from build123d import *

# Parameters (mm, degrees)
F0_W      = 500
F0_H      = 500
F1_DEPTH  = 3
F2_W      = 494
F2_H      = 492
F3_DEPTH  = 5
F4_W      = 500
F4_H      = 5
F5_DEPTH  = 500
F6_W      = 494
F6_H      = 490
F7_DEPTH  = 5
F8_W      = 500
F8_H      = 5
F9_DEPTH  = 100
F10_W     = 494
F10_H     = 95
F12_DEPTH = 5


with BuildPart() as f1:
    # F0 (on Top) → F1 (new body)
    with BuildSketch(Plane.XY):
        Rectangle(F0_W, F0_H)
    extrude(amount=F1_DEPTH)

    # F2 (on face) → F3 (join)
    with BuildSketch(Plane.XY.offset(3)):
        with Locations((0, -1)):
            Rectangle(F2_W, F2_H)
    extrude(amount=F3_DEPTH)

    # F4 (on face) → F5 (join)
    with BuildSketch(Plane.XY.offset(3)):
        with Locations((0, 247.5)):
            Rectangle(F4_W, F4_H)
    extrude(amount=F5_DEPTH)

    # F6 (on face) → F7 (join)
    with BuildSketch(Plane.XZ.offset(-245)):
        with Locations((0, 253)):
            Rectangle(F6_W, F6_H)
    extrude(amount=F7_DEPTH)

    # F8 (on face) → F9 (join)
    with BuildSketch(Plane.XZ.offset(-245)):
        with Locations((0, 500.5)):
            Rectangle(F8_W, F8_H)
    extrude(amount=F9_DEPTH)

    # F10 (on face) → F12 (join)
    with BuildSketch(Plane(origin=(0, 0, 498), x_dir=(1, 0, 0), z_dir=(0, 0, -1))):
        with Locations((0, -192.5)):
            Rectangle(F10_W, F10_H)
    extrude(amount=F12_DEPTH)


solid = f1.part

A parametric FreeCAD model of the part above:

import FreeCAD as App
import Part
import Sketcher
Q = App.Units.Quantity


def add_polygon(sketch, points):
    """Adds a closed chain of lines whose ends are joined by coincident constraints."""
    first, n = sketch.GeometryCount, len(points)
    for a, b in zip(points, points[1:] + points[:1]):
        sketch.addGeometry(Part.LineSegment(App.Vector(*a, 0), App.Vector(*b, 0)), False)
    for i in range(n):
        sketch.addConstraint(Sketcher.Constraint("Coincident", first + i, 2, first + (i + 1) % n, 1))

doc = App.newDocument("Part")
params = doc.addObject("Spreadsheet::Sheet", "Params")
for row, (alias, value) in enumerate([
    ("sketch1_width", "500 mm"),
    ("pad1_length", "3 mm"),
    ("sketch2_width", "494 mm"),
    ("sketch2_height", "492 mm"),
    ("pad2_length", "5 mm"),
    ("sketch3_width", "500 mm"),
    ("sketch3_height", "5 mm"),
    ("pad3_length", "500 mm"),
    ("sketch4_width", "494 mm"),
    ("sketch4_height", "490 mm"),
    ("pad4_length", "5 mm"),
    ("sketch5_width", "500 mm"),
    ("sketch5_height", "5 mm"),
    ("pad5_length", "100 mm"),
    ("sketch6_width", "494 mm"),
    ("sketch6_height", "95 mm"),
    ("pad6_length", "5 mm"),
], start=1):
    params.set(f"A{row}", alias)
    params.set(f"B{row}", "=" + value)
    params.setAlias(f"B{row}", alias)

body = doc.addObject("PartDesign::Body", "Body")

# Sketch on XY plane
sketch1 = body.newObject("Sketcher::SketchObject", "Sketch")
sketch1.AttachmentSupport = (doc.getObject("XY_Plane"), [""])
sketch1.MapMode = "FlatFace"
add_polygon(sketch1, [(-250, 250), (-250, -250), (250, -250), (250, 250)])  # lines 0-3
sketch1.addConstraint(Sketcher.Constraint("Vertical", 0))
sketch1.addConstraint(Sketcher.Constraint("Horizontal", 1))
sketch1.addConstraint(Sketcher.Constraint("Vertical", 2))
sketch1.addConstraint(Sketcher.Constraint("Horizontal", 3))
sketch1.addConstraint(Sketcher.Constraint("Symmetric", 0, 2, 2, 2, -1, 1))
sketch1.addConstraint(Sketcher.Constraint("Equal", 3, 0))
sketch1.addConstraint(Sketcher.Constraint("DistanceX", 1, 1, 1, 2, Q("500 mm")))
sketch1.setExpression("Constraints[10]", "Params.sketch1_width")
pad1 = body.newObject("PartDesign::Pad", "Pad")
pad1.Profile = sketch1
pad1.setExpression("Length", "Params.pad1_length")

# Sketch on XY plane
sketch2 = body.newObject("Sketcher::SketchObject", "Sketch001")
sketch2.AttachmentSupport = (doc.getObject("XY_Plane"), [""])
sketch2.MapMode = "FlatFace"
sketch2.AttachmentOffset = App.Placement(App.Vector(0, 0, 3), App.Rotation())
add_polygon(sketch2, [(-247, 245), (-247, -247), (247, -247), (247, 245)])  # lines 0-3
sketch2.addConstraint(Sketcher.Constraint("Vertical", 0))
sketch2.addConstraint(Sketcher.Constraint("Horizontal", 1))
sketch2.addConstraint(Sketcher.Constraint("Vertical", 2))
sketch2.addConstraint(Sketcher.Constraint("Horizontal", 3))
sketch2.addConstraint(Sketcher.Constraint("DistanceX", 1, 1, 1, 2, Q("494 mm")))
sketch2.addConstraint(Sketcher.Constraint("DistanceY", 0, 2, 0, 1, Q("492 mm")))
sketch2.addConstraint(Sketcher.Constraint("DistanceX", 0, 2, -1, 1, Q("247 mm")))
sketch2.addConstraint(Sketcher.Constraint("DistanceY", 0, 2, -1, 1, Q("247 mm")))
sketch2.setExpression("Constraints[8]", "Params.sketch2_width")
sketch2.setExpression("Constraints[9]", "Params.sketch2_height")
pad2 = body.newObject("PartDesign::Pad", "Pad001")
pad2.Profile = sketch2
pad2.setExpression("Length", "Params.pad2_length")

# Sketch on XY plane
sketch3 = body.newObject("Sketcher::SketchObject", "Sketch002")
sketch3.AttachmentSupport = (doc.getObject("XY_Plane"), [""])
sketch3.MapMode = "FlatFace"
sketch3.AttachmentOffset = App.Placement(App.Vector(0, 0, 3), App.Rotation())
add_polygon(sketch3, [(-250, 250), (-250, 245), (250, 245), (250, 250)])  # lines 0-3
sketch3.addConstraint(Sketcher.Constraint("Vertical", 0))
sketch3.addConstraint(Sketcher.Constraint("Horizontal", 1))
sketch3.addConstraint(Sketcher.Constraint("Vertical", 2))
sketch3.addConstraint(Sketcher.Constraint("Horizontal", 3))
sketch3.addConstraint(Sketcher.Constraint("DistanceX", 1, 1, 1, 2, Q("500 mm")))
sketch3.addConstraint(Sketcher.Constraint("DistanceY", 0, 2, 0, 1, Q("5 mm")))
sketch3.addConstraint(Sketcher.Constraint("DistanceX", 0, 2, -1, 1, Q("250 mm")))
sketch3.addConstraint(Sketcher.Constraint("DistanceY", -1, 1, 0, 2, Q("245 mm")))
sketch3.setExpression("Constraints[8]", "Params.sketch3_width")
sketch3.setExpression("Constraints[9]", "Params.sketch3_height")
pad3 = body.newObject("PartDesign::Pad", "Pad002")
pad3.Profile = sketch3
pad3.setExpression("Length", "Params.pad3_length")

# Sketch on XZ plane
sketch4 = body.newObject("Sketcher::SketchObject", "Sketch003")
sketch4.AttachmentSupport = (doc.getObject("XZ_Plane"), [""])
sketch4.MapMode = "FlatFace"
sketch4.AttachmentOffset = App.Placement(App.Vector(0, 0, -245), App.Rotation())
add_polygon(sketch4, [(-247, 498), (-247, 8), (247, 8), (247, 498)])  # lines 0-3
sketch4.addConstraint(Sketcher.Constraint("Vertical", 0))
sketch4.addConstraint(Sketcher.Constraint("Horizontal", 1))
sketch4.addConstraint(Sketcher.Constraint("Vertical", 2))
sketch4.addConstraint(Sketcher.Constraint("Horizontal", 3))
sketch4.addConstraint(Sketcher.Constraint("DistanceX", 1, 1, 1, 2, Q("494 mm")))
sketch4.addConstraint(Sketcher.Constraint("DistanceY", 0, 2, 0, 1, Q("490 mm")))
sketch4.addConstraint(Sketcher.Constraint("DistanceX", 0, 2, -1, 1, Q("247 mm")))
sketch4.addConstraint(Sketcher.Constraint("DistanceY", -1, 1, 0, 2, Q("8 mm")))
sketch4.setExpression("Constraints[8]", "Params.sketch4_width")
sketch4.setExpression("Constraints[9]", "Params.sketch4_height")
pad4 = body.newObject("PartDesign::Pad", "Pad003")
pad4.Profile = sketch4
pad4.setExpression("Length", "Params.pad4_length")

# Sketch on XZ plane
sketch5 = body.newObject("Sketcher::SketchObject", "Sketch004")
sketch5.AttachmentSupport = (doc.getObject("XZ_Plane"), [""])
sketch5.MapMode = "FlatFace"
sketch5.AttachmentOffset = App.Placement(App.Vector(0, 0, -245), App.Rotation())
add_polygon(sketch5, [(-250, 503), (-250, 498), (250, 498), (250, 503)])  # lines 0-3
sketch5.addConstraint(Sketcher.Constraint("Vertical", 0))
sketch5.addConstraint(Sketcher.Constraint("Horizontal", 1))
sketch5.addConstraint(Sketcher.Constraint("Vertical", 2))
sketch5.addConstraint(Sketcher.Constraint("Horizontal", 3))
sketch5.addConstraint(Sketcher.Constraint("DistanceX", 1, 1, 1, 2, Q("500 mm")))
sketch5.addConstraint(Sketcher.Constraint("DistanceY", 0, 2, 0, 1, Q("5 mm")))
sketch5.addConstraint(Sketcher.Constraint("DistanceX", 0, 2, -1, 1, Q("250 mm")))
sketch5.addConstraint(Sketcher.Constraint("DistanceY", -1, 1, 0, 2, Q("498 mm")))
sketch5.setExpression("Constraints[8]", "Params.sketch5_width")
sketch5.setExpression("Constraints[9]", "Params.sketch5_height")
pad5 = body.newObject("PartDesign::Pad", "Pad004")
pad5.Profile = sketch5
pad5.setExpression("Length", "Params.pad5_length")

# Sketch on XY plane
sketch6 = body.newObject("Sketcher::SketchObject", "Sketch005")
sketch6.AttachmentSupport = (doc.getObject("XY_Plane"), [""])
sketch6.MapMode = "FlatFace"
sketch6.AttachmentOffset = App.Placement(App.Vector(0, 0, 498), App.Rotation())
add_polygon(sketch6, [(-247, 145), (-247, 240), (247, 240), (247, 145)])  # lines 0-3
sketch6.addConstraint(Sketcher.Constraint("Vertical", 0))
sketch6.addConstraint(Sketcher.Constraint("Horizontal", 1))
sketch6.addConstraint(Sketcher.Constraint("Vertical", 2))
sketch6.addConstraint(Sketcher.Constraint("Horizontal", 3))
sketch6.addConstraint(Sketcher.Constraint("DistanceX", 1, 1, 1, 2, Q("494 mm")))
sketch6.addConstraint(Sketcher.Constraint("DistanceY", 0, 1, 0, 2, Q("95 mm")))
sketch6.addConstraint(Sketcher.Constraint("DistanceX", 0, 2, -1, 1, Q("247 mm")))
sketch6.addConstraint(Sketcher.Constraint("DistanceY", -1, 1, 0, 2, Q("240 mm")))
sketch6.setExpression("Constraints[8]", "Params.sketch6_width")
sketch6.setExpression("Constraints[9]", "Params.sketch6_height")
pad6 = body.newObject("PartDesign::Pad", "Pad005")
pad6.Profile = sketch6
pad6.setExpression("Length", "Params.pad6_length")
pad6.Reversed = True

doc.recompute()
